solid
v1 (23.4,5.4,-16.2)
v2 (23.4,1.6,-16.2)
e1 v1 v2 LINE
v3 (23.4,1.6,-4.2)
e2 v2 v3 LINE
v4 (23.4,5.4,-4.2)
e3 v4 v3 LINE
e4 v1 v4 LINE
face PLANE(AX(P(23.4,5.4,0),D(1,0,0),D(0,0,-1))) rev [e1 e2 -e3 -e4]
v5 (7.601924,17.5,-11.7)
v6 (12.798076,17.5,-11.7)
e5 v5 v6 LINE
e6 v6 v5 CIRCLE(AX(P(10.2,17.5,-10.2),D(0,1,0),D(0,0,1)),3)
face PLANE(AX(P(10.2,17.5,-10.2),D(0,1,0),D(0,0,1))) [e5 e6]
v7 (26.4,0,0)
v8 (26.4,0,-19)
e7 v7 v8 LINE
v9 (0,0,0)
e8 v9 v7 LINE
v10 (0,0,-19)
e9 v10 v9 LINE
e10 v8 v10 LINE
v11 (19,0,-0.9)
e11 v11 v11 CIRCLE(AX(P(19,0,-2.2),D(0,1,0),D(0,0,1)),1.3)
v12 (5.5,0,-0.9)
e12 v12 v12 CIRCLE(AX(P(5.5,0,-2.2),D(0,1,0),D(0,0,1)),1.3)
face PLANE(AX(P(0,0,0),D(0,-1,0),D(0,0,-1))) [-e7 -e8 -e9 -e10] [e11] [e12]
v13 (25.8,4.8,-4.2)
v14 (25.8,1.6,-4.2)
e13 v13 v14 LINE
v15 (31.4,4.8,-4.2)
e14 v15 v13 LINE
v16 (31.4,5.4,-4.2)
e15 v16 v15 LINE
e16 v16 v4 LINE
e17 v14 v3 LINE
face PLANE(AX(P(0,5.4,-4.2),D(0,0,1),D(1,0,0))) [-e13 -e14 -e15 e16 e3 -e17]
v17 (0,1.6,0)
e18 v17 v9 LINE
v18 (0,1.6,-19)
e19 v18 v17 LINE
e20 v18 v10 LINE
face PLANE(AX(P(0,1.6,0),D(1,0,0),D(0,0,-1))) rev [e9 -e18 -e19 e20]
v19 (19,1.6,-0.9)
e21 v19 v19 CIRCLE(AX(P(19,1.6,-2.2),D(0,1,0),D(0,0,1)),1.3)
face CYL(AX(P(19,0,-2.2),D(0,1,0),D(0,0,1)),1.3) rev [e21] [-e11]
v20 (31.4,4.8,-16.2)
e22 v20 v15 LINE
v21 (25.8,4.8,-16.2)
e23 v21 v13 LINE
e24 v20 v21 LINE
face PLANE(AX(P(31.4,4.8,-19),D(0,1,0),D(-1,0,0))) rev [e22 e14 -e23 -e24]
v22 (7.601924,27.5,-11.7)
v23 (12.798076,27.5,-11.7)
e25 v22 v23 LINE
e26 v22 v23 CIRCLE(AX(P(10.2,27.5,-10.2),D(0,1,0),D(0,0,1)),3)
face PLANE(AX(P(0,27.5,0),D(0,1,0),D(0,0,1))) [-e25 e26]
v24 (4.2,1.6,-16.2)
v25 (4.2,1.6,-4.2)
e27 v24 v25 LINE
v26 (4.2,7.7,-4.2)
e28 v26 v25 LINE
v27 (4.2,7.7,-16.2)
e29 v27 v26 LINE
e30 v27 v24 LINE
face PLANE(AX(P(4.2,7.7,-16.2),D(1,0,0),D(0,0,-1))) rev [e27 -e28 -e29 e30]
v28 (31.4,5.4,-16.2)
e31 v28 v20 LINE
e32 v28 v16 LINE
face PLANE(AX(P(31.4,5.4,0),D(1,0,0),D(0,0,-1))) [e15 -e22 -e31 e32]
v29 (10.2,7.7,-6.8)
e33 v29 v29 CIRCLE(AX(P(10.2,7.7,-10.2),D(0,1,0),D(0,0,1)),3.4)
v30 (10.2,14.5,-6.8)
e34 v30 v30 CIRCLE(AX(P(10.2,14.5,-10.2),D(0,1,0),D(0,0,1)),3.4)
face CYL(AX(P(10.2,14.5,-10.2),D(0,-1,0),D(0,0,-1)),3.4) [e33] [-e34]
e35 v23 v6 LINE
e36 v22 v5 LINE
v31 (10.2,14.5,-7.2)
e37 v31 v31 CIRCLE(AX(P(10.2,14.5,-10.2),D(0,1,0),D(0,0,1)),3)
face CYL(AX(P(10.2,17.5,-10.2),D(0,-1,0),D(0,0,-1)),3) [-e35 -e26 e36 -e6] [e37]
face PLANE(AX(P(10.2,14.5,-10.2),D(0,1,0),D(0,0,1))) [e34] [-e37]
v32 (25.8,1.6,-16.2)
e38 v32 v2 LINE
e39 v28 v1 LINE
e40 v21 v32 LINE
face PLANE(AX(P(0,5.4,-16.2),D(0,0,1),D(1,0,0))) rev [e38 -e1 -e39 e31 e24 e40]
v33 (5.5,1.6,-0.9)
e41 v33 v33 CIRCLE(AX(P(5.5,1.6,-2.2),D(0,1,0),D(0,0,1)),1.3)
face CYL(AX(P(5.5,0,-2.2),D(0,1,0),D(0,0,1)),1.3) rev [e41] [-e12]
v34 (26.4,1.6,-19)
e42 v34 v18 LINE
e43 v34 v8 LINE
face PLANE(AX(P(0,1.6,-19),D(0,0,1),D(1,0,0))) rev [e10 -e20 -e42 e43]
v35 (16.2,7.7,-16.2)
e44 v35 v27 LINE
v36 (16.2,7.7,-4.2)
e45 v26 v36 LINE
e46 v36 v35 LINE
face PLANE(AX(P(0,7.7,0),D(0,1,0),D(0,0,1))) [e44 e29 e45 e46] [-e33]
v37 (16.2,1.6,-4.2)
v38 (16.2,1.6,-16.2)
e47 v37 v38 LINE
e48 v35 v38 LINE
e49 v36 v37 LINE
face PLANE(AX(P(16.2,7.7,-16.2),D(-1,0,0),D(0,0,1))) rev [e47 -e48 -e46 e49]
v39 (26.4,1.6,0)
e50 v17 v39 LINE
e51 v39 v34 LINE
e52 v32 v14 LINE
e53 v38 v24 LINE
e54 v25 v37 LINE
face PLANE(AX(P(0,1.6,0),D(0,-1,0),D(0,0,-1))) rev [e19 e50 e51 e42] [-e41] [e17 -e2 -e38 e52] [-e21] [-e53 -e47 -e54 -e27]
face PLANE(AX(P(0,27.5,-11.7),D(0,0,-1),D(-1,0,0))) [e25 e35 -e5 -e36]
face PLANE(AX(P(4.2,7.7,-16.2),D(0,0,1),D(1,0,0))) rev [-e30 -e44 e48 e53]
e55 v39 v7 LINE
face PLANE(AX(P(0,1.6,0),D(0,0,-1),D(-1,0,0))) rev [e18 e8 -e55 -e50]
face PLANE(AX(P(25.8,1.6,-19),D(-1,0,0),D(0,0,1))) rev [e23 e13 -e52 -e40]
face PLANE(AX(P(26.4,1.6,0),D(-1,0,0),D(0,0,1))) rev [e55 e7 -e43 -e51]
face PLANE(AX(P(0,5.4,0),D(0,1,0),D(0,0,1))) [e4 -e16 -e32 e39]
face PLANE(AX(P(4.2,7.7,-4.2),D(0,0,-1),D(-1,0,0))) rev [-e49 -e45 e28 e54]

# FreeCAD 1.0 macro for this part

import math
import FreeCAD as App
import Part
import Sketcher

doc = App.newDocument("Part")
body = doc.addObject("PartDesign::Body", "Body")

# Sketch on XZ plane
sketch1 = body.newObject("Sketcher::SketchObject", "Sketch")
sketch1.AttachmentSupport = (doc.getObject("XZ_Plane"), [""])
sketch1.MapMode = "FlatFace"
sketch1.addGeometry([
    Part.LineSegment(App.Vector(0, -19, 0), App.Vector(0, 0, 0)),
    Part.LineSegment(App.Vector(0, 0, 0), App.Vector(26, 0, 0)),
    Part.LineSegment(App.Vector(26, 0, 0), App.Vector(26, -19, 0)),
    Part.LineSegment(App.Vector(26, -19, 0), App.Vector(0, -19, 0)),
], False)
sketch1.addConstraint([
    Sketcher.Constraint("Coincident", 0, 2, 1, 1),
    Sketcher.Constraint("Coincident", 1, 2, 2, 1),
    Sketcher.Constraint("Coincident", 2, 2, 3, 1),
    Sketcher.Constraint("Coincident", 3, 2, 0, 1),
    Sketcher.Constraint("Vertical", 0),
    Sketcher.Constraint("Horizontal", 1),
    Sketcher.Constraint("Vertical", 2),
    Sketcher.Constraint("Horizontal", 3),
    Sketcher.Constraint("Coincident", 0, 2, -1, 1),
    Sketcher.Constraint("DistanceY", 0, 1, 0, 2, 19.0),
    Sketcher.Constraint("DistanceX", 1, 1, 1, 2, 26.4),
])
pad1 = body.newObject("PartDesign::Pad", "Pad")
pad1.Profile = sketch1
pad1.Length = 1.6
pad1.Reversed = True

# Sketch on XZ plane
sketch2 = body.newObject("Sketcher::SketchObject", "Sketch001")
sketch2.AttachmentSupport = (doc.getObject("XZ_Plane"), [""])
sketch2.MapMode = "FlatFace"
sketch2.AttachmentOffset = App.Placement(App.Vector(0, 0, -1.6), App.Rotation())
sketch2.addGeometry([
    Part.Circle(App.Vector(5.5, -2.2, 0), App.Vector(0, 0, 1), 1.3),
    Part.Circle(App.Vector(19, -2.2, 0), App.Vector(0, 0, 1), 1.3),
], False)
sketch2.addConstraint([
    Sketcher.Constraint("Equal", 0, 1),
    Sketcher.Constraint("Horizontal", 0, 3, 1, 3),
    Sketcher.Constraint("Diameter", 0, 2.6),
    Sketcher.Constraint("DistanceX", -1, 1, 1, 3, 19.0),
    Sketcher.Constraint("DistanceX", -1, 1, 0, 3, 5.5),
    Sketcher.Constraint("DistanceY", 0, 3, -1, 1, 2.2),
])
pocket1 = body.newObject("PartDesign::Pocket", "Pocket")
pocket1.Profile = sketch2
pocket1.Type = "ThroughAll"
pocket1.Reversed = True

# Sketch on XZ plane
sketch3 = body.newObject("Sketcher::SketchObject", "Sketch002")
sketch3.AttachmentSupport = (doc.getObject("XZ_Plane"), [""])
sketch3.MapMode = "FlatFace"
sketch3.AttachmentOffset = App.Placement(App.Vector(0, 0, -1.6), App.Rotation())
sketch3.addGeometry([
    Part.LineSegment(App.Vector(4, -16, 0), App.Vector(4, -4, 0)),
    Part.LineSegment(App.Vector(4, -4, 0), App.Vector(16, -4, 0)),
    Part.LineSegment(App.Vector(16, -4, 0), App.Vector(16, -16, 0)),
    Part.LineSegment(App.Vector(16, -16, 0), App.Vector(4, -16, 0)),
], False)
sketch3.addConstraint([
    Sketcher.Constraint("Coincident", 0, 2, 1, 1),
    Sketcher.Constraint("Coincident", 1, 2, 2, 1),
    Sketcher.Constraint("Coincident", 2, 2, 3, 1),
    Sketcher.Constraint("Coincident", 3, 2, 0, 1),
    Sketcher.Constraint("Vertical", 0),
    Sketcher.Constraint("Horizontal", 1),
    Sketcher.Constraint("Vertical", 2),
    Sketcher.Constraint("Horizontal", 3),
    Sketcher.Constraint("Equal", 3, 0),
    Sketcher.Constraint("DistanceX", 1, 1, 1, 2, 12.0),
    Sketcher.Constraint("DistanceX", -1, 1, 0, 2, 4.2),
    Sketcher.Constraint("DistanceY", 0, 2, -1, 1, 4.2),
])
pad2 = body.newObject("PartDesign::Pad", "Pad001")
pad2.Profile = sketch3
pad2.Length = 6.1
pad2.Reversed = True

# Sketch on XZ plane
sketch4 = body.newObject("Sketcher::SketchObject", "Sketch003")
sketch4.AttachmentSupport = (doc.getObject("XZ_Plane"), [""])
sketch4.MapMode = "FlatFace"
sketch4.AttachmentOffset = App.Placement(App.Vector(0, 0, -7.7), App.Rotation())
sketch4.addGeometry(Part.Circle(App.Vector(10.2, -10.2, 0), App.Vector(0, 0, 1), 3.4), False)
sketch4.addConstraint([
    Sketcher.Constraint("Diameter", 0, 6.8),
    Sketcher.Constraint("DistanceX", -1, 1, 0, 3, 10.2),
    Sketcher.Constraint("DistanceY", 0, 3, -1, 1, 10.2),
])
pad3 = body.newObject("PartDesign::Pad", "Pad002")
pad3.Profile = sketch4
pad3.Length = 6.8
pad3.Reversed = True

# Sketch on XZ plane
sketch5 = body.newObject("Sketcher::SketchObject", "Sketch004")
sketch5.AttachmentSupport = (doc.getObject("XZ_Plane"), [""])
sketch5.MapMode = "FlatFace"
sketch5.AttachmentOffset = App.Placement(App.Vector(0, 0, -14.5), App.Rotation())
sketch5.addGeometry(Part.Circle(App.Vector(10.2, -10.2, 0), App.Vector(0, 0, 1), 3), False)
sketch5.addConstraint([
    Sketcher.Constraint("Diameter", 0, 6.0),
    Sketcher.Constraint("DistanceX", -1, 1, 0, 3, 10.2),
    Sketcher.Constraint("DistanceY", 0, 3, -1, 1, 10.2),
])
pad4 = body.newObject("PartDesign::Pad", "Pad003")
pad4.Profile = sketch5
pad4.Length = 3
pad4.Reversed = True

# Sketch on XZ plane
sketch6 = body.newObject("Sketcher::SketchObject", "Sketch005")
sketch6.AttachmentSupport = (doc.getObject("XZ_Plane"), [""])
sketch6.MapMode = "FlatFace"
sketch6.AttachmentOffset = App.Placement(App.Vector(0, 0, -17.5), App.Rotation())
sketch6.addGeometry([
    Part.ArcOfCircle(Part.Circle(App.Vector(10.2, -10.2, 0), App.Vector(0, 0, 1), 3), math.radians(-30), math.radians(0)),  # 0
    Part.LineSegment(App.Vector(12.8, -11.7, 0), App.Vector(7.6, -11.7, 0)),  # 1
    Part.ArcOfCircle(Part.Circle(App.Vector(10.2, -10.2, 0), App.Vector(0, 0, 1), 3), math.radians(150), math.radians(210)),  # 2
    Part.ArcOfCircle(Part.Circle(App.Vector(10.2, -10.2, 0), App.Vector(0, 0, 1), 3), math.radians(90), math.radians(150)),  # 3
    Part.ArcOfCircle(Part.Circle(App.Vector(10.2, -10.2, 0), App.Vector(0, 0, 1), 3), math.radians(30), math.radians(90)),  # 4
    Part.ArcOfCircle(Part.Circle(App.Vector(10.2, -10.2, 0), App.Vector(0, 0, 1), 3), math.radians(0), math.radians(30)),  # 5
], False)
sketch6.addConstraint([
    Sketcher.Constraint("Coincident", 0, 1, 1, 1),
    Sketcher.Constraint("Coincident", 1, 2, 2, 2),
    Sketcher.Constraint("Tangent", 2, 1, 3, 2),
    Sketcher.Constraint("Tangent", 3, 1, 4, 2),
    Sketcher.Constraint("Tangent", 4, 1, 5, 2),
    Sketcher.Constraint("Tangent", 5, 1, 0, 2),
    Sketcher.Constraint("Horizontal", 1),
    Sketcher.Constraint("Coincident", 2, 3, 0, 3),
    Sketcher.Constraint("Coincident", 4, 3, 0, 3),
    Sketcher.Constraint("Horizontal", 2, 1, 4, 1),
    Sketcher.Constraint("Horizontal", 4, 3, 5, 1),
    Sketcher.Constraint("Vertical", 1, 2, 2, 1),
    Sketcher.Constraint("Vertical", 5, 3, 3, 1),
    Sketcher.Constraint("Radius", 0, 3.0),
    Sketcher.Constraint("DistanceY", 1, 2, 2, 1, 3.0),
    Sketcher.Constraint("DistanceX", -1, 1, 0, 3, 10.2),
    Sketcher.Constraint("DistanceY", 0, 3, -1, 1, 10.2),
])
pad5 = body.newObject("PartDesign::Pad", "Pad004")
pad5.Profile = sketch6
pad5.Length = 10
pad5.Reversed = True

# Sketch on XZ plane
sketch7 = body.newObject("Sketcher::SketchObject", "Sketch006")
sketch7.AttachmentSupport = (doc.getObject("XZ_Plane"), [""])
sketch7.MapMode = "FlatFace"
sketch7.AttachmentOffset = App.Placement(App.Vector(0, 0, -1.6), App.Rotation())
sketch7.addGeometry([
    Part.LineSegment(App.Vector(23, -16, 0), App.Vector(23, -4, 0)),
    Part.LineSegment(App.Vector(23, -4, 0), App.Vector(31, -4, 0)),
    Part.LineSegment(App.Vector(31, -4, 0), App.Vector(31, -16, 0)),
    Part.LineSegment(App.Vector(31, -16, 0), App.Vector(23, -16, 0)),
], False)
sketch7.addConstraint([
    Sketcher.Constraint("Coincident", 0, 2, 1, 1),
    Sketcher.Constraint("Coincident", 1, 2, 2, 1),
    Sketcher.Constraint("Coincident", 2, 2, 3, 1),
    Sketcher.Constraint("Coincident", 3, 2, 0, 1),
    Sketcher.Constraint("Vertical", 0),
    Sketcher.Constraint("Horizontal", 1),
    Sketcher.Constraint("Vertical", 2),
    Sketcher.Constraint("Horizontal", 3),
    Sketcher.Constraint("DistanceX", 1, 1, 1, 2, 8.0),
    Sketcher.Constraint("DistanceY", 0, 1, 0, 2, 12.0),
    Sketcher.Constraint("DistanceX", -1, 1, 0, 2, 23.4),
    Sketcher.Constraint("DistanceY", 0, 2, -1, 1, 4.2),
])
pad6 = body.newObject("PartDesign::Pad", "Pad005")
pad6.Profile = sketch7
pad6.Length = 3.8
pad6.Reversed = True

# Sketch on XY plane
sketch8 = body.newObject("Sketcher::SketchObject", "Sketch007")
sketch8.AttachmentSupport = (doc.getObject("XY_Plane"), [""])
sketch8.MapMode = "FlatFace"
sketch8.AttachmentOffset = App.Placement(App.Vector(0, 0, -4.2), App.Rotation())
sketch8.addGeometry([
    Part.LineSegment(App.Vector(25.8, 4.8, 0), App.Vector(25.8, 1.6, 0)),
    Part.LineSegment(App.Vector(25.8, 1.6, 0), App.Vector(31.4, 1.6, 0)),
    Part.LineSegment(App.Vector(31.4, 1.6, 0), App.Vector(31.4, 4.8, 0)),
    Part.LineSegment(App.Vector(31.4, 4.8, 0), App.Vector(25.8, 4.8, 0)),
], False)
sketch8.addConstraint([
    Sketcher.Constraint("Coincident", 0, 2, 1, 1),
    Sketcher.Constraint("Coincident", 1, 2, 2, 1),
    Sketcher.Constraint("Coincident", 2, 2, 3, 1),
    Sketcher.Constraint("Coincident", 3, 2, 0, 1),
    Sketcher.Constraint("Vertical", 0),
    Sketcher.Constraint("Horizontal", 1),
    Sketcher.Constraint("Vertical", 2),
    Sketcher.Constraint("Horizontal", 3),
    Sketcher.Constraint("DistanceX", 1, 1, 1, 2, 5.6),
    Sketcher.Constraint("DistanceY", 0, 2, 0, 1, 3.2),
    Sketcher.Constraint("DistanceX", -1, 1, 0, 2, 25.8),
    Sketcher.Constraint("DistanceY", -1, 1, 0, 2, 1.6),
])
pocket2 = body.newObject("PartDesign::Pocket", "Pocket001")
pocket2.Profile = sketch8
pocket2.Type = "ThroughAll"

doc.recompute()
